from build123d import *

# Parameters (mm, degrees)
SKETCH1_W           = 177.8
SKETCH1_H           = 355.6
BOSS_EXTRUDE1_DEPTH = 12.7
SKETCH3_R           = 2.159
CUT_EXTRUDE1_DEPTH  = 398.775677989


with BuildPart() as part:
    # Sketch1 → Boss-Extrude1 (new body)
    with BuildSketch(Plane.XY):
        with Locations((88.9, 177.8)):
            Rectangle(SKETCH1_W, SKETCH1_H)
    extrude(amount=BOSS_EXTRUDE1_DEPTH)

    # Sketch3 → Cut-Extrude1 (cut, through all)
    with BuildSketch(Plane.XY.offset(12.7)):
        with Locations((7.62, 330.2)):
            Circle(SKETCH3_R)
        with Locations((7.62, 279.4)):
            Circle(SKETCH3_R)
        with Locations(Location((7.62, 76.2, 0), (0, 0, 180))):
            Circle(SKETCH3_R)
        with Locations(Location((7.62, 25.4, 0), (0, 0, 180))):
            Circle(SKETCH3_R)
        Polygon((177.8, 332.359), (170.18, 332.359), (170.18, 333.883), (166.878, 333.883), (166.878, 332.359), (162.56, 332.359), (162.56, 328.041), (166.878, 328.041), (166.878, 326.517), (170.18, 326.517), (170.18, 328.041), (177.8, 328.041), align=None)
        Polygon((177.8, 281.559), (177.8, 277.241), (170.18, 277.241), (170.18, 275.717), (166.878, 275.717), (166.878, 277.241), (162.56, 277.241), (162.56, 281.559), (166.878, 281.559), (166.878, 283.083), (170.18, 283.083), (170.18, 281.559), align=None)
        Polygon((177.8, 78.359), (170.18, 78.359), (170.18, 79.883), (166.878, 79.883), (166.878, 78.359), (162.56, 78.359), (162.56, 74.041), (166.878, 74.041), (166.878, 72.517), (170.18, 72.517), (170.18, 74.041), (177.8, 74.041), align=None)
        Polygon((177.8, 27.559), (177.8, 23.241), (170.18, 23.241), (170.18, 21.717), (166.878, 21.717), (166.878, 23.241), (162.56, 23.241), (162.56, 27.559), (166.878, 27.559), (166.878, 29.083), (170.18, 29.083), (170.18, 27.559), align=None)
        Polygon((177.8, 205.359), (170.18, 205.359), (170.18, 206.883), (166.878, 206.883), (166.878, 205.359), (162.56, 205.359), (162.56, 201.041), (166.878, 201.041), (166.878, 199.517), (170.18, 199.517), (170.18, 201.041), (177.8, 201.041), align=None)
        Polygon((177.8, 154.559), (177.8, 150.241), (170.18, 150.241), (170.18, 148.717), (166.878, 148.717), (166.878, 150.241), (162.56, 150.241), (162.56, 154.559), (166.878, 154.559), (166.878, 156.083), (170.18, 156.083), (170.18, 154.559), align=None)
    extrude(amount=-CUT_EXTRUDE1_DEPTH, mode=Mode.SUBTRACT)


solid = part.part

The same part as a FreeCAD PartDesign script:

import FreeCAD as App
import Part
import Sketcher
from FreeCAD import Vector
Q = App.Units.Quantity


def add_polygon(sketch, points):
    """Adds a closed chain of lines whose ends are joined by coincident constraints."""
    first, n = sketch.GeometryCount, len(points)
    for a, b in zip(points, points[1:] + points[:1]):
        sketch.addGeometry(Part.LineSegment(App.Vector(*a, 0), App.Vector(*b, 0)), False)
    for i in range(n):
        sketch.addConstraint(Sketcher.Constraint("Coincident", first + i, 2, first + (i + 1) % n, 1))

doc = App.newDocument("Part")
body = doc.addObject("PartDesign::Body", "Body")

sketch1 = body.newObject("Sketcher::SketchObject", "Sketch")
sketch1.AttachmentSupport = (doc.getObject("XY_Plane"), [""])
sketch1.MapMode = "FlatFace"
add_polygon(sketch1, [(0, 356), (0, 0), (178, 0), (178, 356)])
sketch1.addConstraint([
    Sketcher.Constraint("Vertical", 0),
    Sketcher.Constraint("Horizontal", 1),
    Sketcher.Constraint("Vertical", 2),
    Sketcher.Constraint("Horizontal", 3),
    Sketcher.Constraint("Coincident", 0, 2, -1, 1),
    Sketcher.Constraint("DistanceX", 1, 1, 1, 2, Q("7 in")),
    Sketcher.Constraint("DistanceY", 0, 2, 0, 1, Q("14 in")),
])
pad1 = body.newObject("PartDesign::Pad", "Pad")
pad1.Profile = sketch1
pad1.Length = Q("0.5 in")

sketch2 = body.newObject("Sketcher::SketchObject", "Sketch001")
sketch2.AttachmentSupport = (doc.getObject("XY_Plane"), [""])
sketch2.MapMode = "FlatFace"
sketch2.AttachmentOffset = App.Placement(Vector(0, 0, 0.5 * 25.4), App.Rotation())
sketch2.addGeometry(Part.Circle(Vector(7.6, 330.2, 0), Vector(0, 0, 1), 2.2), False)
sketch2.addGeometry(Part.Circle(Vector(7.6, 279.4, 0), Vector(0, 0, 1), 2.2), False)
sketch2.addGeometry(Part.Circle(Vector(7.6, 76.2, 0), Vector(0, 0, 1), 2.2), False)
sketch2.addGeometry(Part.Circle(Vector(7.6, 25.4, 0), Vector(0, 0, 1), 2.2), False)
add_polygon(sketch2, [(177.8, 332.4), (170.2, 332.4), (170.2, 333.9), (166.9, 333.9), (166.9, 332.4), (162.6, 332.4), (162.6, 328), (166.9, 328), (166.9, 326.5), (170.2, 326.5), (170.2, 328), (177.8, 328)])
add_polygon(sketch2, [(177.8, 277.2), (177.8, 281.6), (170.2, 281.6), (170.2, 283.1), (166.9, 283.1), (166.9, 281.6), (162.6, 281.6), (162.6, 277.2), (166.9, 277.2), (166.9, 275.7), (170.2, 275.7), (170.2, 277.2)])
add_polygon(sketch2, [(177.8, 78.4), (170.2, 78.4), (170.2, 79.9), (166.9, 79.9), (166.9, 78.4), (162.6, 78.4), (162.6, 74), (166.9, 74), (166.9, 72.5), (170.2, 72.5), (170.2, 74), (177.8, 74)])
add_polygon(sketch2, [(177.8, 23.2), (177.8, 27.6), (170.2, 27.6), (170.2, 29.1), (166.9, 29.1), (166.9, 27.6), (162.6, 27.6), (162.6, 23.2), (166.9, 23.2), (166.9, 21.7), (170.2, 21.7), (170.2, 23.2)])
add_polygon(sketch2, [(177.8, 205.4), (170.2, 205.4), (170.2, 206.9), (166.9, 206.9), (166.9, 205.4), (162.6, 205.4), (162.6, 201), (166.9, 201), (166.9, 199.5), (170.2, 199.5), (170.2, 201), (177.8, 201)])
add_polygon(sketch2, [(177.8, 150.2), (177.8, 154.6), (170.2, 154.6), (170.2, 156.1), (166.9, 156.1), (166.9, 154.6), (162.6, 154.6), (162.6, 150.2), (166.9, 150.2), (166.9, 148.7), (170.2, 148.7), (170.2, 150.2)])
sketch2.addConstraint([
    Sketcher.Constraint("Horizontal", 4),
    Sketcher.Constraint("Vertical", 5),
    Sketcher.Constraint("Horizontal", 6),
    Sketcher.Constraint("Vertical", 7),
    Sketcher.Constraint("Horizontal", 8),
    Sketcher.Constraint("Vertical", 9),
    Sketcher.Constraint("Horizontal", 10),
    Sketcher.Constraint("Vertical", 11),
    Sketcher.Constraint("Horizontal", 12),
    Sketcher.Constraint("Vertical", 13),
    Sketcher.Constraint("Horizontal", 14),
    Sketcher.Constraint("Vertical", 15),
    Sketcher.Constraint("Vertical", 16),
    Sketcher.Constraint("Horizontal", 17),
    Sketcher.Constraint("Vertical", 18),
    Sketcher.Constraint("Horizontal", 19),
    Sketcher.Constraint("Vertical", 20),
    Sketcher.Constraint("Horizontal", 21),
    Sketcher.Constraint("Vertical", 22),
    Sketcher.Constraint("Horizontal", 23),
    Sketcher.Constraint("Vertical", 24),
    Sketcher.Constraint("Horizontal", 25),
    Sketcher.Constraint("Vertical", 26),
    Sketcher.Constraint("Horizontal", 27),
    Sketcher.Constraint("Horizontal", 28),
    Sketcher.Constraint("Vertical", 29),
    Sketcher.Constraint("Horizontal", 30),
    Sketcher.Constraint("Vertical", 31),
    Sketcher.Constraint("Horizontal", 32),
    Sketcher.Constraint("Vertical", 33),
    Sketcher.Constraint("Horizontal", 34),
    Sketcher.Constraint("Vertical", 35),
    Sketcher.Constraint("Horizontal", 36),
    Sketcher.Constraint("Vertical", 37),
    Sketcher.Constraint("Horizontal", 38),
    Sketcher.Constraint("Vertical", 39),
    Sketcher.Constraint("Vertical", 40),
    Sketcher.Constraint("Horizontal", 41),
    Sketcher.Constraint("Vertical", 42),
    Sketcher.Constraint("Horizontal", 43),
    Sketcher.Constraint("Vertical", 44),
    Sketcher.Constraint("Horizontal", 45),
    Sketcher.Constraint("Vertical", 46),
    Sketcher.Constraint("Horizontal", 47),
    Sketcher.Constraint("Vertical", 48),
    Sketcher.Constraint("Horizontal", 49),
    Sketcher.Constraint("Vertical", 50),
    Sketcher.Constraint("Horizontal", 51),
    Sketcher.Constraint("Horizontal", 52),
    Sketcher.Constraint("Vertical", 53),
    Sketcher.Constraint("Horizontal", 54),
    Sketcher.Constraint("Vertical", 55),
    Sketcher.Constraint("Horizontal", 56),
    Sketcher.Constraint("Vertical", 57),
    Sketcher.Constraint("Horizontal", 58),
    Sketcher.Constraint("Vertical", 59),
    Sketcher.Constraint("Horizontal", 60),
    Sketcher.Constraint("Vertical", 61),
    Sketcher.Constraint("Horizontal", 62),
    Sketcher.Constraint("Vertical", 63),
    Sketcher.Constraint("Vertical", 64),
    Sketcher.Constraint("Horizontal", 65),
    Sketcher.Constraint("Vertical", 66),
    Sketcher.Constraint("Horizontal", 67),
    Sketcher.Constraint("Vertical", 68),
    Sketcher.Constraint("Horizontal", 69),
    Sketcher.Constraint("Vertical", 70),
    Sketcher.Constraint("Horizontal", 71),
    Sketcher.Constraint("Vertical", 72),
    Sketcher.Constraint("Horizontal", 73),
    Sketcher.Constraint("Vertical", 74),
    Sketcher.Constraint("Horizontal", 75),
    Sketcher.Constraint("Equal", 0, 1),
    Sketcher.Constraint("Equal", 1, 2),
    Sketcher.Constraint("Equal", 2, 3),
    Sketcher.Constraint("Horizontal", 4, 2, 7, 2),
    Sketcher.Constraint("Horizontal", 10, 2, 13, 2),
    Sketcher.Constraint("Horizontal", 17, 2, 20, 2),
    Sketcher.Constraint("Horizontal", 23, 2, 26, 2),
    Sketcher.Constraint("Horizontal", 28, 2, 31, 2),
    Sketcher.Constraint("Horizontal", 34, 2, 37, 2),
    Sketcher.Constraint("Horizontal", 41, 2, 44, 2),
    Sketcher.Constraint("Horizontal", 47, 2, 50, 2),
    Sketcher.Constraint("Horizontal", 52, 2, 55, 2),
    Sketcher.Constraint("Horizontal", 58, 2, 61, 2),
    Sketcher.Constraint("Horizontal", 65, 2, 68, 2),
    Sketcher.Constraint("Horizontal", 71, 2, 74, 2),
    Sketcher.Constraint("Vertical", 0, 3, 1, 3),
    Sketcher.Constraint("Vertical", 1, 3, 2, 3),
    Sketcher.Constraint("Vertical", 2, 3, 3, 3),
    Sketcher.Constraint("Vertical", 7, 2, 10, 2),
    Sketcher.Constraint("Vertical", 5, 2, 12, 2),
    Sketcher.Constraint("Vertical", 15, 2, 16, 2),
    Sketcher.Constraint("Vertical", 13, 2, 17, 2),
    Sketcher.Constraint("Vertical", 11, 2, 19, 2),
    Sketcher.Constraint("Vertical", 9, 2, 21, 2),
    Sketcher.Constraint("Vertical", 20, 2, 23, 2),
    Sketcher.Constraint("Vertical", 18, 2, 25, 2),
    Sketcher.Constraint("Vertical", 26, 2, 28, 2),
    Sketcher.Constraint("Vertical", 24, 2, 30, 2),
    Sketcher.Constraint("Vertical", 22, 2, 32, 2),
    Sketcher.Constraint("Vertical", 31, 2, 34, 2),
    Sketcher.Constraint("Vertical", 29, 2, 36, 2),
    Sketcher.Constraint("Vertical", 27, 2, 38, 2),
    Sketcher.Constraint("Vertical", 39, 2, 40, 2),
    Sketcher.Constraint("Vertical", 37, 2, 41, 2),
    Sketcher.Constraint("Vertical", 35, 2, 43, 2),
    Sketcher.Constraint("Vertical", 33, 2, 45, 2),
    Sketcher.Constraint("Vertical", 44, 2, 47, 2),
    Sketcher.Constraint("Vertical", 42, 2, 49, 2),
    Sketcher.Constraint("Vertical", 50, 2, 52, 2),
    Sketcher.Constraint("Vertical", 48, 2, 54, 2),
    Sketcher.Constraint("Vertical", 46, 2, 56, 2),
    Sketcher.Constraint("Vertical", 55, 2, 58, 2),
    Sketcher.Constraint("Vertical", 53, 2, 60, 2),
    Sketcher.Constraint("Vertical", 51, 2, 62, 2),
    Sketcher.Constraint("Vertical", 63, 2, 64, 2),
    Sketcher.Constraint("Vertical", 61, 2, 65, 2),
    Sketcher.Constraint("Vertical", 59, 2, 67, 2),
    Sketcher.Constraint("Vertical", 57, 2, 69, 2),
    Sketcher.Constraint("Vertical", 68, 2, 71, 2),
    Sketcher.Constraint("Vertical", 66, 2, 73, 2),
    Sketcher.Constraint("Equal", 71, 9),
    Sketcher.Constraint("Equal", 7, 11),
    Sketcher.Constraint("Equal", 15, 16),
    Sketcher.Constraint("Equal", 13, 18),
    Sketcher.Constraint("Equal", 20, 24),
    Sketcher.Constraint("Equal", 26, 29),
    Sketcher.Constraint("Equal", 22, 33),
    Sketcher.Constraint("Equal", 31, 35),
    Sketcher.Constraint("Equal", 39, 40),
    Sketcher.Constraint("Equal", 37, 42),
    Sketcher.Constraint("Equal", 44, 48),
    Sketcher.Constraint("Equal", 50, 53),
    Sketcher.Constraint("Equal", 46, 57),
    Sketcher.Constraint("Equal", 55, 59),
    Sketcher.Constraint("Equal", 63, 64),
    Sketcher.Constraint("Equal", 61, 66),
    Sketcher.Constraint("Equal", 68, 72),
    Sketcher.Constraint("Diameter", 0, Q("0.17 in")),
    Sketcher.Constraint("DistanceX", 4, 2, 4, 1, Q("0.3 in")),
    Sketcher.Constraint("DistanceY", -1, 1, 0, 3, Q("13 in")),
    Sketcher.Constraint("DistanceY", -1, 1, 1, 3, Q("11 in")),
    Sketcher.Constraint("DistanceY", -1, 1, 2, 3, Q("3 in")),
    Sketcher.Constraint("DistanceY", -1, 1, 3, 3, Q("1 in")),
    Sketcher.Constraint("DistanceX", -1, 1, 14, 2, Q("7 in")),
    Sketcher.Constraint("DistanceX", 6, 2, 6, 1, Q("0.13 in")),
    Sketcher.Constraint("DistanceX", 8, 2, 8, 1, Q("0.17 in")),
    Sketcher.Constraint("DistanceY", 5, 1, 5, 2, Q("0.06 in")),
    Sketcher.Constraint("DistanceX", -1, 1, 0, 3, Q("0.3 in")),
    Sketcher.Constraint("DistanceY", -1, 1, 4, 2, Q("13.085 in")),
    Sketcher.Constraint("DistanceY", -1, 1, 16, 2, Q("11.085 in")),
    Sketcher.Constraint("DistanceY", -1, 1, 28, 2, Q("3.085 in")),
    Sketcher.Constraint("DistanceY", -1, 1, 40, 2, Q("1.085 in")),
    Sketcher.Constraint("DistanceY", -1, 1, 52, 2, Q("8.085 in")),
    Sketcher.Constraint("DistanceY", -1, 1, 64, 2, Q("6.085 in")),
])
pocket1 = body.newObject("PartDesign::Pocket", "Pocket")
pocket1.Profile = sketch2
pocket1.Type = "ThroughAll"

doc.recompute()
